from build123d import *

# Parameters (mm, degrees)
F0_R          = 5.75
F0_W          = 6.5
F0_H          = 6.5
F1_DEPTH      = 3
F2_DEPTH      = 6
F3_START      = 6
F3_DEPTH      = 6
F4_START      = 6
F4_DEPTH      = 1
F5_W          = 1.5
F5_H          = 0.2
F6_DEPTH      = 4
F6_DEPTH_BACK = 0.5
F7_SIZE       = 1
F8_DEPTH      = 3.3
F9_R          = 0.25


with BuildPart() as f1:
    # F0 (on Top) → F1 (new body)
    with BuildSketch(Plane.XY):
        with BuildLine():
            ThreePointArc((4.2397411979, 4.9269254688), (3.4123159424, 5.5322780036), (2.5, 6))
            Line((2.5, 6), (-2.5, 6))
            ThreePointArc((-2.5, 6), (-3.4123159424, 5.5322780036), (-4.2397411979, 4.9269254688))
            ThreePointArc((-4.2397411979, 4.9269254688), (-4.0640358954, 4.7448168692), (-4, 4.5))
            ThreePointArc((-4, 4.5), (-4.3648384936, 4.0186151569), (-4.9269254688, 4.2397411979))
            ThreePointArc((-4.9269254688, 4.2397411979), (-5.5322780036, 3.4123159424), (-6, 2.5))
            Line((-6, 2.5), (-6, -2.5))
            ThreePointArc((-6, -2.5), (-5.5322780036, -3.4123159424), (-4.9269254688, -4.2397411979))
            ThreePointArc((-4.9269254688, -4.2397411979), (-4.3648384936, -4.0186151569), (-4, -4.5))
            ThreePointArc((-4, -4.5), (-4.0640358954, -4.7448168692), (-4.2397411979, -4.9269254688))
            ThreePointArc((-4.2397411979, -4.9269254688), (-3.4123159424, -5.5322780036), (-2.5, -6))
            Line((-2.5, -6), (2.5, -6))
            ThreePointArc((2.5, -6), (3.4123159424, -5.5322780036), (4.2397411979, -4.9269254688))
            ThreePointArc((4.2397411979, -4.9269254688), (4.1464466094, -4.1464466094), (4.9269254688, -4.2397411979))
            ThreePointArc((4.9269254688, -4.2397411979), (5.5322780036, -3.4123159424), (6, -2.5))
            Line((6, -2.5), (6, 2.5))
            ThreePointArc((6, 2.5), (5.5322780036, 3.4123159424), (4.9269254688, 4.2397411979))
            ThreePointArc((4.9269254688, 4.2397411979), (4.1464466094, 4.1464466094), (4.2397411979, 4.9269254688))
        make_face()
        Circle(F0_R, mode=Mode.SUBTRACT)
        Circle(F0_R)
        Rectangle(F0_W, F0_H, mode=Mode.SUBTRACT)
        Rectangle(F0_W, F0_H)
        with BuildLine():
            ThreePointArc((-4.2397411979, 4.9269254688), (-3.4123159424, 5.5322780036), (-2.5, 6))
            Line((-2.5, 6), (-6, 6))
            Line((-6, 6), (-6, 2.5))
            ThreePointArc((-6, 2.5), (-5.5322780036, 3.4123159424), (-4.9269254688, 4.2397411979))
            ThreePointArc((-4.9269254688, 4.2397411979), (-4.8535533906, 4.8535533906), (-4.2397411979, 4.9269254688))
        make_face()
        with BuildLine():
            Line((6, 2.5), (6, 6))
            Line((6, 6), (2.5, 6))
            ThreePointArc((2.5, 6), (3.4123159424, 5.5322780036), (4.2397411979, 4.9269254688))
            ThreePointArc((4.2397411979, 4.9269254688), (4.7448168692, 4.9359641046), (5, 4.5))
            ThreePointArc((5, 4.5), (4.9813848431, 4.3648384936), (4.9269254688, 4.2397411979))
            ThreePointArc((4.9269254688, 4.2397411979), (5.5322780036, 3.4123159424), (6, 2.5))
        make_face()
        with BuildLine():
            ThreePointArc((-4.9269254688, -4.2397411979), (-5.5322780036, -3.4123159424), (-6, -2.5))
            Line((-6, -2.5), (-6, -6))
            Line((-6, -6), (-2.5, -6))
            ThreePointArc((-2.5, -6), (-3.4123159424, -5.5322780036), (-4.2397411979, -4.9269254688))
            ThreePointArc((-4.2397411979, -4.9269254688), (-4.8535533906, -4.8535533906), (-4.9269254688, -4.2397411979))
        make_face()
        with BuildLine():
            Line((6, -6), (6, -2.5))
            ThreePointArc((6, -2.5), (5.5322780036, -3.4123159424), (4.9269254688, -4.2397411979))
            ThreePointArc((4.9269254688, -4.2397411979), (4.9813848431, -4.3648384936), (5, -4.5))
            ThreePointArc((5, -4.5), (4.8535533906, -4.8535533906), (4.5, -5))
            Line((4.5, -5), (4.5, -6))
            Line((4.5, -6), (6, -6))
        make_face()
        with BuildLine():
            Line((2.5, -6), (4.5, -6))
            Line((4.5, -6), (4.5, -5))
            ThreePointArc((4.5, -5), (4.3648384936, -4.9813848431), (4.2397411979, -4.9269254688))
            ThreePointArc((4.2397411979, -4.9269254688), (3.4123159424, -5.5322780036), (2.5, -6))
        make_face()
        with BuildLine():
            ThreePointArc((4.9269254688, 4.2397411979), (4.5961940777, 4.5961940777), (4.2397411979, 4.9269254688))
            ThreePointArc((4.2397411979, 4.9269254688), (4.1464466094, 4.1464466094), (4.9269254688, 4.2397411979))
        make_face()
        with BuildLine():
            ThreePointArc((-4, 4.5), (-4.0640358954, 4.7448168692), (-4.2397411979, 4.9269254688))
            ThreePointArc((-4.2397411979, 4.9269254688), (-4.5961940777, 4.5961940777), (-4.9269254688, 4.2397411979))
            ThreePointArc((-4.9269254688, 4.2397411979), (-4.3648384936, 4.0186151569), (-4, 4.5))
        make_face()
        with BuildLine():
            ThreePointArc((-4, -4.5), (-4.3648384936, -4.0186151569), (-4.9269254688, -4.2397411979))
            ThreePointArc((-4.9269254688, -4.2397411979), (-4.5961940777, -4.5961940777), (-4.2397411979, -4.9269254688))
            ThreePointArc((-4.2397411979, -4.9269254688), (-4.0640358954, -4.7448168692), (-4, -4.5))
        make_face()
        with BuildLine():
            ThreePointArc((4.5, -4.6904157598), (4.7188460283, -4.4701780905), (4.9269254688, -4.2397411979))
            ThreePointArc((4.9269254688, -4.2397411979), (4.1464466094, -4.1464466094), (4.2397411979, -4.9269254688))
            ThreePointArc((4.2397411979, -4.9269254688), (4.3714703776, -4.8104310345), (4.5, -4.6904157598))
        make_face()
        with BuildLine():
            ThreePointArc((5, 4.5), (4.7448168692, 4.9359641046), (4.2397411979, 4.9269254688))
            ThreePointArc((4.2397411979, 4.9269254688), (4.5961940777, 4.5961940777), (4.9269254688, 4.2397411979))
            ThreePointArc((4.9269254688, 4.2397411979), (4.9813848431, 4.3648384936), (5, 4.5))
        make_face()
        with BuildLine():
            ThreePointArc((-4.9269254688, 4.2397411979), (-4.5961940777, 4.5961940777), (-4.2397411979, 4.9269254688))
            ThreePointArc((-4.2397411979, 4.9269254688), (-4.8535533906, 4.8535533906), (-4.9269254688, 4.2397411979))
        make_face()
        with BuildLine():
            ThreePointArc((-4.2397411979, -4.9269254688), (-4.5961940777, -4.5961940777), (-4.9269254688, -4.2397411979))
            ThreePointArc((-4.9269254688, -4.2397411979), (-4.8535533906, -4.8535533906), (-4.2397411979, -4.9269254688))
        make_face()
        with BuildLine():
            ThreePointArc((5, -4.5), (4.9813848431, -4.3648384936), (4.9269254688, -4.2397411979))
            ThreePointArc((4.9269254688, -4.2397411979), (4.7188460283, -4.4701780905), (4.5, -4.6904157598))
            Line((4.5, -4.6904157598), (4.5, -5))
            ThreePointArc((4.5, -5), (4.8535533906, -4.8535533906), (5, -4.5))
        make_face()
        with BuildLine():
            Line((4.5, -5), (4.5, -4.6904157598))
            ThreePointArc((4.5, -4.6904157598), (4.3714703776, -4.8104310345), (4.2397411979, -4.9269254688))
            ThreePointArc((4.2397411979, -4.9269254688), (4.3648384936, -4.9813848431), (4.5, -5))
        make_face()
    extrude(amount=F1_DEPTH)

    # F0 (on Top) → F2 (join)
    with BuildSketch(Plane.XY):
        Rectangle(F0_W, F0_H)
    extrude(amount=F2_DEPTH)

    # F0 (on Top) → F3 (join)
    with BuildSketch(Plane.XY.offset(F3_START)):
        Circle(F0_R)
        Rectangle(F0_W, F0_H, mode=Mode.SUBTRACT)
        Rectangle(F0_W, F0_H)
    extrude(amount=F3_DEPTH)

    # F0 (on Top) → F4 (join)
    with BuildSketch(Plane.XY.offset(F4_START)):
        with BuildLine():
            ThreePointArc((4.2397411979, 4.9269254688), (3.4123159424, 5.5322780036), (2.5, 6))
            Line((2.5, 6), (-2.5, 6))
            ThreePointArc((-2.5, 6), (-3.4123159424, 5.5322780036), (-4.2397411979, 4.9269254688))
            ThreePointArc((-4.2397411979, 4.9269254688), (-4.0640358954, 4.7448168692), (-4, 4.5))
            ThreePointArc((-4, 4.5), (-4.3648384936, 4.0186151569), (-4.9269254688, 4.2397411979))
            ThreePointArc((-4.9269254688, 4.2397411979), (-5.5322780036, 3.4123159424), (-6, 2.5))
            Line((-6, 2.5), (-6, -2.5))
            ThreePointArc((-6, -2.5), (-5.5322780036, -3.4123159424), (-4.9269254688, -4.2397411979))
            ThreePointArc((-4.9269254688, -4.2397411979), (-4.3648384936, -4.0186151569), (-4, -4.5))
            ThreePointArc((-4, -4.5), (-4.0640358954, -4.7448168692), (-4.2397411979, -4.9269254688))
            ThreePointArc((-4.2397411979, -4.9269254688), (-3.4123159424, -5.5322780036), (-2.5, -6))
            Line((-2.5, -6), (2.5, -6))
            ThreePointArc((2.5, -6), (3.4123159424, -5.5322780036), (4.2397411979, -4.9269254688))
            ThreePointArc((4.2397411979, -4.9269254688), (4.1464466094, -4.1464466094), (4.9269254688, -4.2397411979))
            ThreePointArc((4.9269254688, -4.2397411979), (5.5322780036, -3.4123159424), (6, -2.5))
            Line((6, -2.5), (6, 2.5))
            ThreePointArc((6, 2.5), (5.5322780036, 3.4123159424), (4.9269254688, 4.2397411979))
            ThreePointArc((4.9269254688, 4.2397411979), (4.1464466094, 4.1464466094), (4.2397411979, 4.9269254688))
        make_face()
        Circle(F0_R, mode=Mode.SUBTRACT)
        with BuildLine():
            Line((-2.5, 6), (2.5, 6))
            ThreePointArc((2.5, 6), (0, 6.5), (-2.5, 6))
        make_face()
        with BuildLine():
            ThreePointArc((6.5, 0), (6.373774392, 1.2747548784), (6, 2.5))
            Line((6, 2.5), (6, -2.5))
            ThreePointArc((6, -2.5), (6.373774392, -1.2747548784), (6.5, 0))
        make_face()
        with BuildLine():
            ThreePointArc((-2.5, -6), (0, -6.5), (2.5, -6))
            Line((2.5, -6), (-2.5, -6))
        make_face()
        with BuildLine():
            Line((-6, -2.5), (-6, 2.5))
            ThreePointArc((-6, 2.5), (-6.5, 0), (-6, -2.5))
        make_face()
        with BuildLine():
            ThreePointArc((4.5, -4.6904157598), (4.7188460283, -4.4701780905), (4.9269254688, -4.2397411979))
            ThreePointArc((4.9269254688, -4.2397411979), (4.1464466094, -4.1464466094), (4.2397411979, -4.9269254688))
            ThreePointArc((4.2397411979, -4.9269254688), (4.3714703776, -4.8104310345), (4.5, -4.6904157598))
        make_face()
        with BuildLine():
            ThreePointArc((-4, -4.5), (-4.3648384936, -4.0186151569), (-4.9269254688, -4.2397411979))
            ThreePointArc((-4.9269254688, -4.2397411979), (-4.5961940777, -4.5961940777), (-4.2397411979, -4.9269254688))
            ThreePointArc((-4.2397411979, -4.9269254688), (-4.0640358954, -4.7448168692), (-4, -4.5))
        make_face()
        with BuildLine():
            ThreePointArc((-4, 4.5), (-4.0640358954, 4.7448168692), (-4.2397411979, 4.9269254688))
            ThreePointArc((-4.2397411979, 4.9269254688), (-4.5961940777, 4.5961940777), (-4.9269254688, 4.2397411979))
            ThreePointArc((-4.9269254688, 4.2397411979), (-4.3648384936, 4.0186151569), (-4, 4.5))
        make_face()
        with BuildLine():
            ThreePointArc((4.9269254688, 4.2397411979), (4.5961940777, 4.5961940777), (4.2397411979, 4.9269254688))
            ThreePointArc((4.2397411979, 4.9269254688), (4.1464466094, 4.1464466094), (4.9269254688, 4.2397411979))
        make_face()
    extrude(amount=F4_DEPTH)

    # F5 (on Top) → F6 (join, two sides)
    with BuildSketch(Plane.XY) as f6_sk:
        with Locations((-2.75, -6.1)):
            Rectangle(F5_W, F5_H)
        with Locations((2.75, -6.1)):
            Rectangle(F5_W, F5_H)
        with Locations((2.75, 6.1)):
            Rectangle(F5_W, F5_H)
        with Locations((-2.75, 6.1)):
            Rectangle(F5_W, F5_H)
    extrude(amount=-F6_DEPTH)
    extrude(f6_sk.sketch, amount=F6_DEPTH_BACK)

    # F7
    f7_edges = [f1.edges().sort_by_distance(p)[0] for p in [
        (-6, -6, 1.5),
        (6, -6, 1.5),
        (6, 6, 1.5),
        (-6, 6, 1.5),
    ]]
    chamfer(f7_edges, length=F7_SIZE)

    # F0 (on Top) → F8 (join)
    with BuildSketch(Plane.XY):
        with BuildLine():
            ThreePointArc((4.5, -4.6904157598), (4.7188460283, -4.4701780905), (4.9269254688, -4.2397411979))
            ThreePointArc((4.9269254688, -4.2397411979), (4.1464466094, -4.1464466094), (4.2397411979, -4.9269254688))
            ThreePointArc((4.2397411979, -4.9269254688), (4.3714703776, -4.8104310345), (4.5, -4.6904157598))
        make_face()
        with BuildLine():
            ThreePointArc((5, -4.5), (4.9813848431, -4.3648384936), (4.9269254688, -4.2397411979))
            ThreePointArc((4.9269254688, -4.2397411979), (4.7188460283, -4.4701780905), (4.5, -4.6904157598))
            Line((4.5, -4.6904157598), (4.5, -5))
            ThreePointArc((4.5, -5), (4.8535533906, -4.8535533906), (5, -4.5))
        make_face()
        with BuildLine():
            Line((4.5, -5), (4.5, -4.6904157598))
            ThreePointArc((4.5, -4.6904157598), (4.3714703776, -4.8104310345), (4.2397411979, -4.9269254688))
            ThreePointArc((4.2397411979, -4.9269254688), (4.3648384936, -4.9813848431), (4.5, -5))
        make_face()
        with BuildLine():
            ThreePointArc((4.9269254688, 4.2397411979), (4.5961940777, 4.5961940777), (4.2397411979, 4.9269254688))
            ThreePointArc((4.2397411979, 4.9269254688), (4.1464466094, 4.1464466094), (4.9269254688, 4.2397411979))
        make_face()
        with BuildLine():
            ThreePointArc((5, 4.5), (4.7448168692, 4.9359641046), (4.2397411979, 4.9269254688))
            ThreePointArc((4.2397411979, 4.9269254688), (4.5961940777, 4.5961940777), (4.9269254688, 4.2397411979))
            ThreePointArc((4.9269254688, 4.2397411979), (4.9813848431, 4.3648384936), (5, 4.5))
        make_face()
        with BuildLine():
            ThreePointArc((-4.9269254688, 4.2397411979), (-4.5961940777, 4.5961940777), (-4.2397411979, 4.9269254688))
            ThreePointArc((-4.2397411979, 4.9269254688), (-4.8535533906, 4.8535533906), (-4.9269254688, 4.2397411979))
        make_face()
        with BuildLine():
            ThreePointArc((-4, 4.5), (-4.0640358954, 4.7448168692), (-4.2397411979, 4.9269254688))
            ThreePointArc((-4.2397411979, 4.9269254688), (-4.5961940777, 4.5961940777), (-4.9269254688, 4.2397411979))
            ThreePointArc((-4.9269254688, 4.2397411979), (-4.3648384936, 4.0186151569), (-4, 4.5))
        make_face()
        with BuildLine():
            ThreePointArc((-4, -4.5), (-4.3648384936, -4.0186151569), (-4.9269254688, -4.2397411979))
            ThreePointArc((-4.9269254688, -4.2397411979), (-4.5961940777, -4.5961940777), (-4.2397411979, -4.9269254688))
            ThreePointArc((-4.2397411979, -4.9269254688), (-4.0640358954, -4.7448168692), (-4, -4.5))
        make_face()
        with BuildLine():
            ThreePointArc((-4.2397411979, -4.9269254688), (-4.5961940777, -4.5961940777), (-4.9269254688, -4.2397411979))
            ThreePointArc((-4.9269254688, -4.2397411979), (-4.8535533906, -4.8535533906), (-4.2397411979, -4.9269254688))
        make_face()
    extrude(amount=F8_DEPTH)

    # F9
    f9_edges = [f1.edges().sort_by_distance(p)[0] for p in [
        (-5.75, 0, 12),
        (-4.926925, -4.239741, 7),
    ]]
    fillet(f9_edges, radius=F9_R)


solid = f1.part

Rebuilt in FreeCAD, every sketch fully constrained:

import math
import FreeCAD as App
import Part
import Sketcher

V = App.Vector
Q = App.Units.Quantity


def edges_at(feature, points):
    """Names of the edges that pass closest to the given points."""
    edges = feature.Shape.Edges
    near = lambda p: min(range(len(edges)), key=lambda i: edges[i].distToShape(Part.Vertex(*p))[0])
    return sorted({f"Edge{near(p) + 1}" for p in points})

doc = App.newDocument("Part")
params = doc.addObject("Spreadsheet::Sheet", "Params")
for row, (alias, value) in enumerate([
    ("sketch1_width", "12 mm"),
    ("pad1_length", "3 mm"),
    ("sketch2_width", "6.5 mm"),
    ("pad2_length", "6 mm"),
    ("sketch3_diameter", "11.5 mm"),
    ("pad3_length", "6 mm"),
    ("sketch4_diameter", "11.5 mm"),
    ("sketch4_radius", "6.5 mm"),
    ("pad4_length", "1 mm"),
    ("sketch5_width", "1.5 mm"),
    ("sketch5_height", "0.2 mm"),
    ("pad5_length", "4 mm"),
    ("pad5_length2", "0.5 mm"),
    ("chamfer_size", "1 mm"),
    ("sketch6_radius", "0.5 mm"),
    ("pad6_length", "3.3 mm"),
    ("fillet_radius", "0.25 mm"),
], start=1):
    params.set(f"A{row}", alias)
    params.set(f"B{row}", "=" + value)
    params.setAlias(f"B{row}", alias)

body = doc.addObject("PartDesign::Body", "Body")

sketch1 = body.newObject("Sketcher::SketchObject", "Sketch")
sketch1.AttachmentSupport = (doc.getObject("XY_Plane"), [""])
sketch1.MapMode = "FlatFace"
sketch1.addGeometry([
    Part.LineSegment(V(6, 6, 0), V(-6, 6, 0)),
    Part.LineSegment(V(-6, 6, 0), V(-6, -6, 0)),
    Part.LineSegment(V(-6, -6, 0), V(6, -6, 0)),
    Part.LineSegment(V(6, -6, 0), V(6, 6, 0)),
], False)
sketch1.addConstraint([
    Sketcher.Constraint("Coincident", 0, 2, 1, 1),
    Sketcher.Constraint("Coincident", 1, 2, 2, 1),
    Sketcher.Constraint("Coincident", 2, 2, 3, 1),
    Sketcher.Constraint("Coincident", 3, 2, 0, 1),
    Sketcher.Constraint("Horizontal", 0),
    Sketcher.Constraint("Vertical", 1),
    Sketcher.Constraint("Horizontal", 2),
    Sketcher.Constraint("Vertical", 3),
    Sketcher.Constraint("Symmetric", 0, 2, 2, 2, -1, 1),
    Sketcher.Constraint("Equal", 2, 1),
    Sketcher.Constraint("DistanceX", 0, 2, 0, 1, Q("12 mm")),
])
sketch1.setExpression("Constraints[10]", "Params.sketch1_width")
pad1 = body.newObject("PartDesign::Pad", "Pad")
pad1.Profile = sketch1
pad1.setExpression("Length", "Params.pad1_length")

sketch2 = body.newObject("Sketcher::SketchObject", "Sketch001")
sketch2.AttachmentSupport = (doc.getObject("XY_Plane"), [""])
sketch2.MapMode = "FlatFace"
sketch2.addGeometry([
    Part.LineSegment(V(-3, 3, 0), V(-3, -3, 0)),
    Part.LineSegment(V(-3, -3, 0), V(3, -3, 0)),
    Part.LineSegment(V(3, -3, 0), V(3, 3, 0)),
    Part.LineSegment(V(3, 3, 0), V(-3, 3, 0)),
], False)
sketch2.addConstraint([
    Sketcher.Constraint("Coincident", 0, 2, 1, 1),
    Sketcher.Constraint("Coincident", 1, 2, 2, 1),
    Sketcher.Constraint("Coincident", 2, 2, 3, 1),
    Sketcher.Constraint("Coincident", 3, 2, 0, 1),
    Sketcher.Constraint("Vertical", 0),
    Sketcher.Constraint("Horizontal", 1),
    Sketcher.Constraint("Vertical", 2),
    Sketcher.Constraint("Horizontal", 3),
    Sketcher.Constraint("Symmetric", 0, 2, 2, 2, -1, 1),
    Sketcher.Constraint("Equal", 3, 0),
    Sketcher.Constraint("DistanceX", 1, 1, 1, 2, Q("6.5 mm")),
])
sketch2.setExpression("Constraints[10]", "Params.sketch2_width")
pad2 = body.newObject("PartDesign::Pad", "Pad001")
pad2.Profile = sketch2
pad2.setExpression("Length", "Params.pad2_length")

sketch3 = body.newObject("Sketcher::SketchObject", "Sketch002")
sketch3.AttachmentSupport = (doc.getObject("XY_Plane"), [""])
sketch3.MapMode = "FlatFace"
sketch3.AttachmentOffset = App.Placement(V(0, 0, 6), App.Rotation())
sketch3.addGeometry(Part.Circle(V(0, 0, 0), V(0, 0, 1), 6), False)
sketch3.addConstraint([
    Sketcher.Constraint("Coincident", 0, 3, -1, 1),
    Sketcher.Constraint("Diameter", 0, Q("11.5 mm")),
])
sketch3.setExpression("Constraints[1]", "Params.sketch3_diameter")
pad3 = body.newObject("PartDesign::Pad", "Pad002")
pad3.Profile = sketch3
pad3.setExpression("Length", "Params.pad3_length")

sketch4 = body.newObject("Sketcher::SketchObject", "Sketch003")
sketch4.AttachmentSupport = (doc.getObject("XY_Plane"), [""])
sketch4.MapMode = "FlatFace"
sketch4.AttachmentOffset = App.Placement(V(0, 0, 6), App.Rotation())
sketch4.addGeometry([
    Part.ArcOfCircle(Part.Circle(V(0, 0, 0), V(0, 0, 1), 6.5), math.radians(49.29), math.radians(67.38)),
    Part.ArcOfCircle(Part.Circle(V(0, 0, 0), V(0, 0, 1), 6.5), math.radians(67), math.radians(113)),
    Part.ArcOfCircle(Part.Circle(V(0, 0, 0), V(0, 0, 1), 6.5), math.radians(112.62), math.radians(130.71)),
    Part.ArcOfCircle(Part.Circle(V(0, 0, 0), V(0, 0, 1), 6.5), math.radians(130.71), math.radians(139.29)),
    Part.ArcOfCircle(Part.Circle(V(0, 0, 0), V(0, 0, 1), 6.5), math.radians(139.29), math.radians(157.38)),
    Part.ArcOfCircle(Part.Circle(V(0, 0, 0), V(0, 0, 1), 6.5), math.radians(157), math.radians(203)),
    Part.ArcOfCircle(Part.Circle(V(0, 0, 0), V(0, 0, 1), 6.5), math.radians(-157.38), math.radians(-139.29)),
    Part.ArcOfCircle(Part.Circle(V(0, 0, 0), V(0, 0, 1), 6.5), math.radians(-139.29), math.radians(-130.71)),
    Part.ArcOfCircle(Part.Circle(V(0, 0, 0), V(0, 0, 1), 6.5), math.radians(-130.71), math.radians(-112.62)),
    Part.ArcOfCircle(Part.Circle(V(0, 0, 0), V(0, 0, 1), 6.5), math.radians(-113), math.radians(-67)),
    Part.ArcOfCircle(Part.Circle(V(0, 0, 0), V(0, 0, 1), 6.5), math.radians(-67.38), math.radians(-49.29)),
    Part.ArcOfCircle(Part.Circle(V(0, 0, 0), V(0, 0, 1), 6.5), math.radians(-49.29), math.radians(-46.19)),
    Part.ArcOfCircle(Part.Circle(V(0, 0, 0), V(0, 0, 1), 6.5), math.radians(-46.19), math.radians(-40.71)),
    Part.ArcOfCircle(Part.Circle(V(0, 0, 0), V(0, 0, 1), 6.5), math.radians(-40.71), math.radians(-22.62)),
    Part.ArcOfCircle(Part.Circle(V(0, 0, 0), V(0, 0, 1), 6.5), math.radians(-23), math.radians(0)),
    Part.ArcOfCircle(Part.Circle(V(0, 0, 0), V(0, 0, 1), 6.5), math.radians(0), math.radians(23)),
    Part.ArcOfCircle(Part.Circle(V(0, 0, 0), V(0, 0, 1), 6.5), math.radians(22.62), math.radians(40.71)),
    Part.ArcOfCircle(Part.Circle(V(0, 0, 0), V(0, 0, 1), 6.5), math.radians(40.71), math.radians(49.29)),
    Part.Circle(V(0, 0, 0), V(0, 0, 1), 5.75),
], False)
sketch4.addConstraint([
    Sketcher.Constraint("Tangent", 0, 2, 1, 1),
    Sketcher.Constraint("Tangent", 1, 2, 2, 1),
    Sketcher.Constraint("Tangent", 2, 2, 3, 1),
    Sketcher.Constraint("Tangent", 3, 2, 4, 1),
    Sketcher.Constraint("Tangent", 4, 2, 5, 1),
    Sketcher.Constraint("Tangent", 5, 2, 6, 1),
    Sketcher.Constraint("Tangent", 6, 2, 7, 1),
    Sketcher.Constraint("Tangent", 7, 2, 8, 1),
    Sketcher.Constraint("Tangent", 8, 2, 9, 1),
    Sketcher.Constraint("Tangent", 9, 2, 10, 1),
    Sketcher.Constraint("Tangent", 10, 2, 11, 1),
    Sketcher.Constraint("Tangent", 11, 2, 12, 1),
    Sketcher.Constraint("Tangent", 12, 2, 13, 1),
    Sketcher.Constraint("Tangent", 13, 2, 14, 1),
    Sketcher.Constraint("Tangent", 14, 2, 15, 1),
    Sketcher.Constraint("Tangent", 15, 2, 16, 1),
    Sketcher.Constraint("Tangent", 16, 2, 17, 1),
    Sketcher.Constraint("Tangent", 17, 2, 0, 1),
    Sketcher.Constraint("Coincident", 0, 3, -1, 1),
    Sketcher.Constraint("Coincident", 2, 3, -1, 1),
    Sketcher.Constraint("Coincident", 4, 3, -1, 1),
    Sketcher.Constraint("Coincident", 6, 3, -1, 1),
    Sketcher.Constraint("Coincident", 8, 3, -1, 1),
    Sketcher.Constraint("Coincident", 10, 3, -1, 1),
    Sketcher.Constraint("Coincident", 12, 3, -1, 1),
    Sketcher.Constraint("Coincident", 14, 3, -1, 1),
    Sketcher.Constraint("Coincident", 18, 3, -1, 1),
    Sketcher.Constraint("Equal", 14, 15),
    Sketcher.Constraint("PointOnObject", 14, 2, -1),
    Sketcher.Constraint("Horizontal", 0, 2, 1, 2),
    Sketcher.Constraint("Horizontal", 8, 2, 9, 2),
    Sketcher.Constraint("Horizontal", 7, 2, 10, 2),
    Sketcher.Constraint("Horizontal", 6, 2, 12, 2),
    Sketcher.Constraint("Horizontal", 5, 2, 13, 2),
    Sketcher.Constraint("Horizontal", 4, 2, 15, 2),
    Sketcher.Constraint("Horizontal", 3, 2, 16, 2),
    Sketcher.Constraint("Horizontal", 2, 2, 17, 2),
    Sketcher.Constraint("Vertical", 4, 2, 5, 2),
    Sketcher.Constraint("Vertical", 3, 2, 6, 2),
    Sketcher.Constraint("Vertical", 2, 2, 7, 2),
    Sketcher.Constraint("Vertical", 1, 2, 8, 2),
    Sketcher.Constraint("Diameter", 18, Q("11.5 mm")),
    Sketcher.Constraint("Radius", 0, Q("6.5 mm")),
    Sketcher.Constraint("DistanceY", -1, 1, 0, 2, Q("6 mm")),
    Sketcher.Constraint("DistanceX", 4, 2, -1, 1, Q("6 mm")),
    Sketcher.Constraint("DistanceX", 9, 2, 11, 2, Q("2 mm")),
    Sketcher.Constraint("DistanceX", 2, 2, -1, 1, Q("4.239741 mm")),
    Sketcher.Constraint("DistanceY", -1, 1, 3, 2, Q("4.239741 mm")),
])
sketch4.setExpression("Constraints[41]", "Params.sketch4_diameter")
sketch4.setExpression("Constraints[42]", "Params.sketch4_radius")
pad4 = body.newObject("PartDesign::Pad", "Pad003")
pad4.Profile = sketch4
pad4.setExpression("Length", "Params.pad4_length")

sketch5 = body.newObject("Sketcher::SketchObject", "Sketch004")
sketch5.AttachmentSupport = (doc.getObject("XY_Plane"), [""])
sketch5.MapMode = "FlatFace"
sketch5.addGeometry([
    Part.LineSegment(V(-3.5, -6, 0), V(-3.5, -6.2, 0)),
    Part.LineSegment(V(-3.5, -6.2, 0), V(-2, -6.2, 0)),
    Part.LineSegment(V(-2, -6.2, 0), V(-2, -6, 0)),
    Part.LineSegment(V(-2, -6, 0), V(-3.5, -6, 0)),
    Part.LineSegment(V(2, -6, 0), V(2, -6.2, 0)),
    Part.LineSegment(V(2, -6.2, 0), V(3.5, -6.2, 0)),
    Part.LineSegment(V(3.5, -6.2, 0), V(3.5, -6, 0)),
    Part.LineSegment(V(3.5, -6, 0), V(2, -6, 0)),
    Part.LineSegment(V(2, 6.2, 0), V(2, 6, 0)),
    Part.LineSegment(V(2, 6, 0), V(3.5, 6, 0)),
    Part.LineSegment(V(3.5, 6, 0), V(3.5, 6.2, 0)),
    Part.LineSegment(V(3.5, 6.2, 0), V(2, 6.2, 0)),
    Part.LineSegment(V(-3.5, 6.2, 0), V(-3.5, 6, 0)),
    Part.LineSegment(V(-3.5, 6, 0), V(-2, 6, 0)),
    Part.LineSegment(V(-2, 6, 0), V(-2, 6.2, 0)),
    Part.LineSegment(V(-2, 6.2, 0), V(-3.5, 6.2, 0)),
], False)
sketch5.addConstraint([
    Sketcher.Constraint("Coincident", 0, 2, 1, 1),
    Sketcher.Constraint("Coincident", 1, 2, 2, 1),
    Sketcher.Constraint("Coincident", 2, 2, 3, 1),
    Sketcher.Constraint("Coincident", 3, 2, 0, 1),
    Sketcher.Constraint("Coincident", 4, 2, 5, 1),
    Sketcher.Constraint("Coincident", 5, 2, 6, 1),
    Sketcher.Constraint("Coincident", 6, 2, 7, 1),
    Sketcher.Constraint("Coincident", 7, 2, 4, 1),
    Sketcher.Constraint("Coincident", 8, 2, 9, 1),
    Sketcher.Constraint("Coincident", 9, 2, 10, 1),
    Sketcher.Constraint("Coincident", 10, 2, 11, 1),
    Sketcher.Constraint("Coincident", 11, 2, 8, 1),
    Sketcher.Constraint("Coincident", 12, 2, 13, 1),
    Sketcher.Constraint("Coincident", 13, 2, 14, 1),
    Sketcher.Constraint("Coincident", 14, 2, 15, 1),
    Sketcher.Constraint("Coincident", 15, 2, 12, 1),
    Sketcher.Constraint("Vertical", 0),
    Sketcher.Constraint("Horizontal", 1),
    Sketcher.Constraint("Vertical", 2),
    Sketcher.Constraint("Horizontal", 3),
    Sketcher.Constraint("Vertical", 4),
    Sketcher.Constraint("Horizontal", 5),
    Sketcher.Constraint("Vertical", 6),
    Sketcher.Constraint("Horizontal", 7),
    Sketcher.Constraint("Vertical", 8),
    Sketcher.Constraint("Horizontal", 9),
    Sketcher.Constraint("Vertical", 10),
    Sketcher.Constraint("Horizontal", 11),
    Sketcher.Constraint("Vertical", 12),
    Sketcher.Constraint("Horizontal", 13),
    Sketcher.Constraint("Vertical", 14),
    Sketcher.Constraint("Horizontal", 15),
    Sketcher.Constraint("Symmetric", 2, 2, 8, 2, -1, 1),
    Sketcher.Constraint("Symmetric", 0, 2, 10, 2, -1, 1),
    Sketcher.Constraint("Symmetric", 6, 2, 12, 2, -1, 1),
    Sketcher.Constraint("Symmetric", 4, 2, 14, 2, -1, 1),
    Sketcher.Constraint("Symmetric", 1, 2, 4, 2, -2),
    Sketcher.Constraint("Symmetric", 3, 2, 6, 2, -2),
    Sketcher.Constraint("DistanceX", 1, 1, 1, 2, Q("1.5 mm")),
    Sketcher.Constraint("DistanceY", 0, 2, 0, 1, Q("0.2 mm")),
    Sketcher.Constraint("DistanceX", 1, 2, -1, 1, Q("2 mm")),
    Sketcher.Constraint("DistanceY", 2, 2, -1, 1, Q("6 mm")),
])
sketch5.setExpression("Constraints[38]", "Params.sketch5_width")
sketch5.setExpression("Constraints[39]", "Params.sketch5_height")
pad5 = body.newObject("PartDesign::Pad", "Pad004")
pad5.Profile = sketch5
pad5.Type = "TwoLengths"
pad5.setExpression("Length", "Params.pad5_length")
pad5.setExpression("Length2", "Params.pad5_length2")
pad5.Reversed = True
doc.recompute()

chamfer = body.newObject("PartDesign::Chamfer", "Chamfer")
chamfer.Base = (pad5, edges_at(pad5, [
    (-6, -6, 1.5),
    (6, -6, 1.5),
    (6, 6, 1.5),
    (-6, 6, 1.5),
]))
chamfer.setExpression("Size", "Params.chamfer_size")

sketch6 = body.newObject("Sketcher::SketchObject", "Sketch005")
sketch6.AttachmentSupport = (doc.getObject("XY_Plane"), [""])
sketch6.MapMode = "FlatFace"
sketch6.addGeometry([
    Part.ArcOfCircle(Part.Circle(V(4.5, -4.5, 0), V(0, 0, 1), 0.5), math.radians(31), math.radians(239)),
    Part.ArcOfCircle(Part.Circle(V(4.5, -4.5, 0), V(0, 0, 1), 0.5), math.radians(-121), math.radians(-90)),
    Part.ArcOfCircle(Part.Circle(V(4.5, -4.5, 0), V(0, 0, 1), 0.5), math.radians(-90), math.radians(0)),
    Part.ArcOfCircle(Part.Circle(V(4.5, -4.5, 0), V(0, 0, 1), 0.5), math.radians(0), math.radians(31)),
    Part.ArcOfCircle(Part.Circle(V(4.5, 4.5, 0), V(0, 0, 1), 0.5), math.radians(121), math.radians(329)),
    Part.ArcOfCircle(Part.Circle(V(4.5, 4.5, 0), V(0, 0, 1), 0.5), math.radians(-31), math.radians(0)),
    Part.ArcOfCircle(Part.Circle(V(4.5, 4.5, 0), V(0, 0, 1), 0.5), math.radians(0), math.radians(121)),
    Part.ArcOfCircle(Part.Circle(V(-4.5, 4.5, 0), V(0, 0, 1), 0.5), math.radians(59), math.radians(211)),
    Part.ArcOfCircle(Part.Circle(V(-4.5, 4.5, 0), V(0, 0, 1), 0.5), math.radians(-149), math.radians(0)),
    Part.ArcOfCircle(Part.Circle(V(-4.5, 4.5, 0), V(0, 0, 1), 0.5), math.radians(0), math.radians(59)),
    Part.ArcOfCircle(Part.Circle(V(-4.5, -4.5, 0), V(0, 0, 1), 0.5), math.radians(0), math.radians(149)),
    Part.ArcOfCircle(Part.Circle(V(-4.5, -4.5, 0), V(0, 0, 1), 0.5), math.radians(149), math.radians(301)),
    Part.ArcOfCircle(Part.Circle(V(-4.5, -4.5, 0), V(0, 0, 1), 0.5), math.radians(-59), math.radians(0)),
], False)
sketch6.addConstraint([
    Sketcher.Constraint("Tangent", 0, 2, 1, 1),
    Sketcher.Constraint("Tangent", 1, 2, 2, 1),
    Sketcher.Constraint("Tangent", 2, 2, 3, 1),
    Sketcher.Constraint("Tangent", 3, 2, 0, 1),
    Sketcher.Constraint("Tangent", 4, 2, 5, 1),
    Sketcher.Constraint("Tangent", 5, 2, 6, 1),
    Sketcher.Constraint("Tangent", 6, 2, 4, 1),
    Sketcher.Constraint("Tangent", 7, 2, 8, 1),
    Sketcher.Constraint("Tangent", 8, 2, 9, 1),
    Sketcher.Constraint("Tangent", 9, 2, 7, 1),
    Sketcher.Constraint("Tangent", 10, 2, 11, 1),
    Sketcher.Constraint("Tangent", 11, 2, 12, 1),
    Sketcher.Constraint("Tangent", 12, 2, 10, 1),
    Sketcher.Constraint("Equal", 0, 1),
    Sketcher.Constraint("Equal", 3, 4),
    Sketcher.Constraint("Equal", 6, 7),
    Sketcher.Constraint("Equal", 9, 10),
    Sketcher.Constraint("Symmetric", 0, 3, 7, 3, -1, 1),
    Sketcher.Constraint("Symmetric", 4, 3, 10, 3, -1, 1),
    Sketcher.Constraint("Symmetric", 4, 3, 7, 3, -2),
    Sketcher.Constraint("Horizontal", 12, 3, 2, 2),
    Sketcher.Constraint("Horizontal", 9, 3, 5, 2),
    Sketcher.Constraint("Horizontal", 4, 2, 7, 2),
    Sketcher.Constraint("Horizontal", 5, 2, 8, 2),
    Sketcher.Constraint("Horizontal", 6, 2, 9, 2),
    Sketcher.Constraint("Horizontal", 3, 2, 10, 2),
    Sketcher.Constraint("Horizontal", 0, 2, 11, 2),
    Sketcher.Constraint("Horizontal", 2, 2, 12, 2),
    Sketcher.Constraint("Vertical", 6, 3, 1, 2),
    Sketcher.Constraint("Vertical", 3, 2, 4, 2),
    Sketcher.Constraint("Vertical", 0, 2, 6, 2),
    Sketcher.Constraint("Radius", 0, Q("0.5 mm")),
    Sketcher.Constraint("DistanceY", 1, 2, -1, 1, Q("5 mm")),
    Sketcher.Constraint("DistanceX", -1, 1, 2, 2, Q("5 mm")),
    Sketcher.Constraint("DistanceX", -1, 1, 0, 2, Q("4.239741 mm")),
    Sketcher.Constraint("DistanceY", 3, 2, -1, 1, Q("4.239741 mm")),
])
sketch6.setExpression("Constraints[31]", "Params.sketch6_radius")
pad6 = body.newObject("PartDesign::Pad", "Pad005")
pad6.Profile = sketch6
pad6.setExpression("Length", "Params.pad6_length")
doc.recompute()

fillet = body.newObject("PartDesign::Fillet", "Fillet")
fillet.Base = (pad6, edges_at(pad6, [(-5.75, 0, 12), (-4.596, -4.596, 7)]))
fillet.setExpression("Radius", "Params.fillet_radius")

doc.recompute()
